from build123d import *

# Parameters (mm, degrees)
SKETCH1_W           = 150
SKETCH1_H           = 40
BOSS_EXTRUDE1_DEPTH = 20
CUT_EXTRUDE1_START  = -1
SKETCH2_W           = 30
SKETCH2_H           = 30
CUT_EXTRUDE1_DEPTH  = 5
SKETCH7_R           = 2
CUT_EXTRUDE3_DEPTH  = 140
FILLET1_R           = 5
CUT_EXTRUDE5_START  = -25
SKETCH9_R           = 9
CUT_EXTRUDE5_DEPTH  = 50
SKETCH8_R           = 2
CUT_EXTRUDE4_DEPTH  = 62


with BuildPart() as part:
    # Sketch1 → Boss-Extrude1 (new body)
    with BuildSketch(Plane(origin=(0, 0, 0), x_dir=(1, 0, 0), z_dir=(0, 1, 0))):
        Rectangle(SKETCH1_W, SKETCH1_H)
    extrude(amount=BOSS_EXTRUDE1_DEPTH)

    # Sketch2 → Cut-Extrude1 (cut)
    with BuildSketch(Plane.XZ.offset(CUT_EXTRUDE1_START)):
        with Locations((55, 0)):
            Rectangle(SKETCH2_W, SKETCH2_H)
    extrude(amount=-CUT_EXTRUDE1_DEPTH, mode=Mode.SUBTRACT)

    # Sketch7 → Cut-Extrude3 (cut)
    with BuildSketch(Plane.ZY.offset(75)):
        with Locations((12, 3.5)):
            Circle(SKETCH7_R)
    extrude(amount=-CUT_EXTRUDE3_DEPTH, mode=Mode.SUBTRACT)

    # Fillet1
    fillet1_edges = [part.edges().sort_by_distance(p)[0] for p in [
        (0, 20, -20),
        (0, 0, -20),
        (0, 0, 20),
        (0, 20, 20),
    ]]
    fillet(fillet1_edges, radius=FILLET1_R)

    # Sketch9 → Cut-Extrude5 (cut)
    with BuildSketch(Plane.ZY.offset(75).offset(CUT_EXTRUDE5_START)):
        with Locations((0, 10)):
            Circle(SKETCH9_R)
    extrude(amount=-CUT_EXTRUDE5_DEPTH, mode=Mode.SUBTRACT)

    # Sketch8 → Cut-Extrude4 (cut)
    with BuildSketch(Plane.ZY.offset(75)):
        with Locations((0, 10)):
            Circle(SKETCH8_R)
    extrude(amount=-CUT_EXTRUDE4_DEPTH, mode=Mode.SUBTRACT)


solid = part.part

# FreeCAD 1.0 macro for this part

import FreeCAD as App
import Part
import Sketcher
from FreeCAD import Vector
Q = App.Units.Quantity


def edges_at(feature, points):
    """Names of the edges that pass closest to the given points."""
    edges = feature.Shape.Edges
    near = lambda p: min(range(len(edges)), key=lambda i: edges[i].distToShape(Part.Vertex(*p))[0])
    return sorted({f"Edge{near(p) + 1}" for p in points})

doc = App.newDocument("Part")
params = doc.addObject("Spreadsheet::Sheet", "Params")
for row, (alias, value) in enumerate([
    ("sketch1_width", "150 mm"),
    ("sketch1_height", "40 mm"),
    ("pad1_length", "20 mm"),
    ("sketch2_width", "30 mm"),
    ("pocket1_length", "5 mm"),
    ("sketch3_diameter", "4 mm"),
    ("pocket2_length", "140 mm"),
    ("fillet_radius", "5 mm"),
    ("sketch4_diameter", "18 mm"),
    ("pocket3_length", "50 mm"),
    ("sketch5_diameter", "4 mm"),
    ("pocket4_length", "62 mm"),
], start=1):
    params.set(f"A{row}", alias)
    params.set(f"B{row}", "=" + value)
    params.setAlias(f"B{row}", alias)

body = doc.addObject("PartDesign::Body", "Body")

# Sketch on XZ plane
sketch1 = body.newObject("Sketcher::SketchObject", "Sketch")
sketch1.AttachmentSupport = (doc.getObject("XZ_Plane"), [""])
sketch1.MapMode = "FlatFace"
sketch1.addGeometry([
    Part.LineSegment(Vector(-75, -20, 0), Vector(-75, 20, 0)),
    Part.LineSegment(Vector(-75, 20, 0), Vector(75, 20, 0)),
    Part.LineSegment(Vector(75, 20, 0), Vector(75, -20, 0)),
    Part.LineSegment(Vector(75, -20, 0), Vector(-75, -20, 0)),
], False)
sketch1.addConstraint([
    Sketcher.Constraint("Coincident", 0, 2, 1, 1),
    Sketcher.Constraint("Coincident", 1, 2, 2, 1),
    Sketcher.Constraint("Coincident", 2, 2, 3, 1),
    Sketcher.Constraint("Coincident", 3, 2, 0, 1),
    Sketcher.Constraint("Vertical", 0),
    Sketcher.Constraint("Horizontal", 1),
    Sketcher.Constraint("Vertical", 2),
    Sketcher.Constraint("Horizontal", 3),
    Sketcher.Constraint("Symmetric", 0, 2, 2, 2, -1, 1),
    Sketcher.Constraint("DistanceX", 1, 1, 1, 2, Q("150 mm")),
    Sketcher.Constraint("DistanceY", 0, 1, 0, 2, Q("40 mm")),
])
sketch1.setExpression("Constraints[9]", "Params.sketch1_width")
sketch1.setExpression("Constraints[10]", "Params.sketch1_height")
pad1 = body.newObject("PartDesign::Pad", "Pad")
pad1.Profile = sketch1
pad1.setExpression("Length", "Params.pad1_length")
pad1.Reversed = True

# Sketch on XZ plane
sketch2 = body.newObject("Sketcher::SketchObject", "Sketch001")
sketch2.AttachmentSupport = (doc.getObject("XZ_Plane"), [""])
sketch2.MapMode = "FlatFace"
sketch2.AttachmentOffset = App.Placement(Vector(0, 0, -1), App.Rotation())
sketch2.addGeometry([
    Part.LineSegment(Vector(40, 15, 0), Vector(40, -15, 0)),
    Part.LineSegment(Vector(40, -15, 0), Vector(70, -15, 0)),
    Part.LineSegment(Vector(70, -15, 0), Vector(70, 15, 0)),
    Part.LineSegment(Vector(70, 15, 0), Vector(40, 15, 0)),
], False)
sketch2.addConstraint([
    Sketcher.Constraint("Coincident", 0, 2, 1, 1),
    Sketcher.Constraint("Coincident", 1, 2, 2, 1),
    Sketcher.Constraint("Coincident", 2, 2, 3, 1),
    Sketcher.Constraint("Coincident", 3, 2, 0, 1),
    Sketcher.Constraint("Vertical", 0),
    Sketcher.Constraint("Horizontal", 1),
    Sketcher.Constraint("Vertical", 2),
    Sketcher.Constraint("Horizontal", 3),
    Sketcher.Constraint("Equal", 3, 0),
    Sketcher.Constraint("DistanceX", 1, 1, 1, 2, Q("30 mm")),
    Sketcher.Constraint("DistanceX", -1, 1, 0, 2, Q("40 mm")),
    Sketcher.Constraint("DistanceY", 0, 2, -1, 1, Q("15 mm")),
])
sketch2.setExpression("Constraints[9]", "Params.sketch2_width")
pocket1 = body.newObject("PartDesign::Pocket", "Pocket")
pocket1.Profile = sketch2
pocket1.setExpression("Length", "Params.pocket1_length")

# Sketch on YZ plane
sketch3 = body.newObject("Sketcher::SketchObject", "Sketch002")
sketch3.AttachmentSupport = (doc.getObject("YZ_Plane"), [""])
sketch3.MapMode = "FlatFace"
sketch3.AttachmentOffset = App.Placement(Vector(0, 0, -75), App.Rotation())
sketch3.addGeometry(Part.Circle(Vector(3.5, 12, 0), Vector(0, 0, 1), 2), False)
sketch3.addConstraint([
    Sketcher.Constraint("Diameter", 0, Q("4 mm")),
    Sketcher.Constraint("DistanceY", -1, 1, 0, 3, Q("12 mm")),
    Sketcher.Constraint("DistanceX", -1, 1, 0, 3, Q("3.5 mm")),
])
sketch3.setExpression("Constraints[0]", "Params.sketch3_diameter")
pocket2 = body.newObject("PartDesign::Pocket", "Pocket001")
pocket2.Profile = sketch3
pocket2.setExpression("Length", "Params.pocket2_length")
pocket2.Reversed = True
doc.recompute()

fillet = body.newObject("PartDesign::Fillet", "Fillet")
fillet.Base = (pocket2, edges_at(pocket2, [
    (0, 20, -20),
    (0, 0, -20),
    (0, 0, 20),
    (0, 20, 20),
]))
fillet.setExpression("Radius", "Params.fillet_radius")

# Sketch on YZ plane
sketch4 = body.newObject("Sketcher::SketchObject", "Sketch003")
sketch4.AttachmentSupport = (doc.getObject("YZ_Plane"), [""])
sketch4.MapMode = "FlatFace"
sketch4.AttachmentOffset = App.Placement(Vector(0, 0, -50), App.Rotation())
sketch4.addGeometry(Part.Circle(Vector(10, 0, 0), Vector(0, 0, 1), 9), False)
sketch4.addConstraint([
    Sketcher.Constraint("PointOnObject", 0, 3, -1),
    Sketcher.Constraint("Diameter", 0, Q("18 mm")),
    Sketcher.Constraint("DistanceX", -1, 1, 0, 3, Q("10 mm")),
])
sketch4.setExpression("Constraints[1]", "Params.sketch4_diameter")
pocket3 = body.newObject("PartDesign::Pocket", "Pocket002")
pocket3.Profile = sketch4
pocket3.setExpression("Length", "Params.pocket3_length")
pocket3.Reversed = True

# Sketch on YZ plane
sketch5 = body.newObject("Sketcher::SketchObject", "Sketch004")
sketch5.AttachmentSupport = (doc.getObject("YZ_Plane"), [""])
sketch5.MapMode = "FlatFace"
sketch5.AttachmentOffset = App.Placement(Vector(0, 0, -75), App.Rotation())
sketch5.addGeometry(Part.Circle(Vector(10, 0, 0), Vector(0, 0, 1), 2), False)
sketch5.addConstraint([
    Sketcher.Constraint("PointOnObject", 0, 3, -1),
    Sketcher.Constraint("Diameter", 0, Q("4 mm")),
    Sketcher.Constraint("DistanceX", -1, 1, 0, 3, Q("10 mm")),
])
sketch5.setExpression("Constraints[1]", "Params.sketch5_diameter")
pocket4 = body.newObject("PartDesign::Pocket", "Pocket003")
pocket4.Profile = sketch5
pocket4.setExpression("Length", "Params.pocket4_length")
pocket4.Reversed = True

doc.recompute()
